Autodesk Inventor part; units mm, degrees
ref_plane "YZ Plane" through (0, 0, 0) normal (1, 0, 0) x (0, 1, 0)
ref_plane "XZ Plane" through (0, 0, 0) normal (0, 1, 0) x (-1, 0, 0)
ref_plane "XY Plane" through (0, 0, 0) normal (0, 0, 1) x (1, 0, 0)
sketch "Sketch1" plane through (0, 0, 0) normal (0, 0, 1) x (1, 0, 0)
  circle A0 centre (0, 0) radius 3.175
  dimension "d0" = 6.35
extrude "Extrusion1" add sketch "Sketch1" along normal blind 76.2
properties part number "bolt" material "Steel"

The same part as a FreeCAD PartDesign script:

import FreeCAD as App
import Part
import Sketcher

V = App.Vector
Q = App.Units.Quantity

doc = App.newDocument("Part")
body = doc.addObject("PartDesign::Body", "Body")

sketch1 = doc.addObject("Sketcher::SketchObject", "Sketch")
body.addObject(sketch1)
sketch1.AttachmentSupport = (doc.XY_Plane, [""])
sketch1.MapMode = "FlatFace"
sketch1.addGeometry(Part.Circle(V(0, 0, 0), V(0, 0, 1), 3.2), False)
sketch1.addConstraint(Sketcher.Constraint("Coincident", 0, 3, -1, 1))
sketch1.addConstraint(Sketcher.Constraint("Diameter", 0, Q("0.25 in")))
pad1 = doc.addObject("PartDesign::Pad", "Pad")
body.addObject(pad1)
pad1.Profile = sketch1
pad1.Length = Q("3 in")

doc.recompute()
